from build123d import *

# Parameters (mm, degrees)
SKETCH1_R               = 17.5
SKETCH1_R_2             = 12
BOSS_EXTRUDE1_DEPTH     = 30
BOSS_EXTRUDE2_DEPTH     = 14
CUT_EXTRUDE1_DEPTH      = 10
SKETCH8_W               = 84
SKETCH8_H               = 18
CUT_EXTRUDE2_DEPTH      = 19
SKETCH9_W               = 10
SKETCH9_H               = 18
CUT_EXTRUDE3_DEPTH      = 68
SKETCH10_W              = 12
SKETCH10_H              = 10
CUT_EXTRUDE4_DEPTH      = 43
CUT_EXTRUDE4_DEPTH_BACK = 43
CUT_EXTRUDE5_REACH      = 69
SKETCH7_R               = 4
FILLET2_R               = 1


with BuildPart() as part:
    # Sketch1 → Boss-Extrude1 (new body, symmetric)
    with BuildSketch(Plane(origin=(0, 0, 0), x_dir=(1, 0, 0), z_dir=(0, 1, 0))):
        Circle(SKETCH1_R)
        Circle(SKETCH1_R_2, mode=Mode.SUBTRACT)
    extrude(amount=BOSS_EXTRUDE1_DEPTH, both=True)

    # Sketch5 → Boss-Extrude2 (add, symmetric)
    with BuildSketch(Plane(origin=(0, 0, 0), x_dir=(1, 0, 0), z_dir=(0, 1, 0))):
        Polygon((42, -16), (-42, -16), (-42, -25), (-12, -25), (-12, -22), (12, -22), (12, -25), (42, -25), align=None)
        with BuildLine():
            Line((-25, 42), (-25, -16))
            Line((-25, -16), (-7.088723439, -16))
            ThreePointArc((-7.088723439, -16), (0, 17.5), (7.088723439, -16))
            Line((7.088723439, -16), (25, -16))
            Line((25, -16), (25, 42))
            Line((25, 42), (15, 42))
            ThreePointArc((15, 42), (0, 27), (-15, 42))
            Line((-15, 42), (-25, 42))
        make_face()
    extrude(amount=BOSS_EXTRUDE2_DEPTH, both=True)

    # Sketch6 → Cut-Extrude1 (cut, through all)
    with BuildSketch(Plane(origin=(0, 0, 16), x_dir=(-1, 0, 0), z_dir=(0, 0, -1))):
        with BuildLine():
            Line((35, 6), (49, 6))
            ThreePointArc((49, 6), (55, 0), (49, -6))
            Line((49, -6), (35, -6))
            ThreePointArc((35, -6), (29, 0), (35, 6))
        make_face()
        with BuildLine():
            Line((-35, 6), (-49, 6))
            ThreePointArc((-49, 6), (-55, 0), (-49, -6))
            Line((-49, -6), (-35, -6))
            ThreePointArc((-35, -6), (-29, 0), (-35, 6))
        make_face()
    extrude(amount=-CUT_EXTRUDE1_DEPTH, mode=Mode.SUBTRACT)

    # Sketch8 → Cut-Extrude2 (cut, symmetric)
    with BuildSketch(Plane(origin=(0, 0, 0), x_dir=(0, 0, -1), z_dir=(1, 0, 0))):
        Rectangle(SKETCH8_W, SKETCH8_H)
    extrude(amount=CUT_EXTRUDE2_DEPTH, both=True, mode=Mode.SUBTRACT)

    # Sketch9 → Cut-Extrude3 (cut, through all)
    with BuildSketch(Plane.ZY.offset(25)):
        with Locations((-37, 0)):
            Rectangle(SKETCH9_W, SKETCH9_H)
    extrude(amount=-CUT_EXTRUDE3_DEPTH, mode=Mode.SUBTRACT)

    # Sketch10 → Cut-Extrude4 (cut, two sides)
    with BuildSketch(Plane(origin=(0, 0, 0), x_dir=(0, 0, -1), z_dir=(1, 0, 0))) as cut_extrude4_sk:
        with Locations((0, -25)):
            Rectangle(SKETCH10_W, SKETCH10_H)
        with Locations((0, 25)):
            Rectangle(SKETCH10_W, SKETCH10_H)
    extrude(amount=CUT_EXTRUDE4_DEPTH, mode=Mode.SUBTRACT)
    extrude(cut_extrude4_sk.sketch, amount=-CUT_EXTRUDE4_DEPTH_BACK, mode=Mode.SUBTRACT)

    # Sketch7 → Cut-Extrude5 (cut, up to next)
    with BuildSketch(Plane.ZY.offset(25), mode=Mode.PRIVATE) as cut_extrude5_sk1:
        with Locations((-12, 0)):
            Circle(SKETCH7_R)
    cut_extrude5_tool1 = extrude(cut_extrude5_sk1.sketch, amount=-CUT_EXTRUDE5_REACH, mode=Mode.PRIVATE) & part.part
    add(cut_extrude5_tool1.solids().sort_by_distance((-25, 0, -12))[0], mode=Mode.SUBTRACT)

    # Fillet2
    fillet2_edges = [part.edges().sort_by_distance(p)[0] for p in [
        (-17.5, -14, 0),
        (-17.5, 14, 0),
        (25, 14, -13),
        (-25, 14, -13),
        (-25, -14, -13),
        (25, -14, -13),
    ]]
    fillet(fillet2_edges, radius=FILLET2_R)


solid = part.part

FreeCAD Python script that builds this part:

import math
import FreeCAD as App
import Part
import Sketcher
from FreeCAD import Vector
Q = App.Units.Quantity


def edges_at(feature, points):
    """Names of the edges that pass closest to the given points."""
    edges = feature.Shape.Edges
    near = lambda p: min(range(len(edges)), key=lambda i: edges[i].distToShape(Part.Vertex(*p))[0])
    return sorted({f"Edge{near(p) + 1}" for p in points})

doc = App.newDocument("Part")
body = doc.addObject("PartDesign::Body", "Body")

# Sketch on XZ plane
sketch1 = body.newObject("Sketcher::SketchObject", "Sketch")
sketch1.AttachmentSupport = (doc.getObject("XZ_Plane"), [""])
sketch1.MapMode = "FlatFace"
sketch1.addGeometry(Part.Circle(Vector(0, 0, 0), Vector(0, 0, 1), 17.5), False)
sketch1.addGeometry(Part.Circle(Vector(0, 0, 0), Vector(0, 0, 1), 12), False)
sketch1.addConstraint(Sketcher.Constraint("Coincident", 0, 3, -1, 1))
sketch1.addConstraint(Sketcher.Constraint("Coincident", 1, 3, -1, 1))
sketch1.addConstraint(Sketcher.Constraint("Diameter", 0, Q("35 mm")))
sketch1.addConstraint(Sketcher.Constraint("Diameter", 1, Q("24 mm")))
pad1 = body.newObject("PartDesign::Pad", "Pad")
pad1.Profile = sketch1
pad1.Length = 60
pad1.Midplane = True

# Sketch on XZ plane
sketch2 = body.newObject("Sketcher::SketchObject", "Sketch001")
sketch2.AttachmentSupport = (doc.getObject("XZ_Plane"), [""])
sketch2.MapMode = "FlatFace"
sketch2.addGeometry(Part.LineSegment(Vector(42, 16, 0), Vector(25, 16, 0)), False)
sketch2.addGeometry(Part.LineSegment(Vector(25, 16, 0), Vector(25, -42, 0)), False)
sketch2.addGeometry(Part.LineSegment(Vector(25, -42, 0), Vector(15, -42, 0)), False)
sketch2.addGeometry(Part.ArcOfCircle(Part.Circle(Vector(0, -42, 0), Vector(0, 0, 1), 15), math.radians(0), math.radians(180)), False)
sketch2.addGeometry(Part.LineSegment(Vector(-15, -42, 0), Vector(-25, -42, 0)), False)
sketch2.addGeometry(Part.LineSegment(Vector(-25, -42, 0), Vector(-25, 16, 0)), False)
sketch2.addGeometry(Part.LineSegment(Vector(-25, 16, 0), Vector(-42, 16, 0)), False)
sketch2.addGeometry(Part.LineSegment(Vector(-42, 16, 0), Vector(-42, 25, 0)), False)
sketch2.addGeometry(Part.LineSegment(Vector(-42, 25, 0), Vector(-12, 25, 0)), False)
sketch2.addGeometry(Part.LineSegment(Vector(-12, 25, 0), Vector(-12, 22, 0)), False)
sketch2.addGeometry(Part.LineSegment(Vector(-12, 22, 0), Vector(12, 22, 0)), False)
sketch2.addGeometry(Part.LineSegment(Vector(12, 22, 0), Vector(12, 25, 0)), False)
sketch2.addGeometry(Part.LineSegment(Vector(12, 25, 0), Vector(42, 25, 0)), False)
sketch2.addGeometry(Part.LineSegment(Vector(42, 25, 0), Vector(42, 16, 0)), False)
sketch2.addGeometry(Part.LineSegment(Vector(7.088723, 16, 0), Vector(-7.088723, 16, 0)), False)
sketch2.addGeometry(Part.ArcOfCircle(Part.Circle(Vector(0, 0, 0), Vector(0, 0, 1), 17.5), math.radians(113.895508), math.radians(426.104492)), False)
sketch2.addConstraint(Sketcher.Constraint("Coincident", 0, 2, 1, 1))
sketch2.addConstraint(Sketcher.Constraint("Coincident", 1, 2, 2, 1))
sketch2.addConstraint(Sketcher.Constraint("Coincident", 2, 2, 3, 1))
sketch2.addConstraint(Sketcher.Constraint("Coincident", 3, 2, 4, 1))
sketch2.addConstraint(Sketcher.Constraint("Coincident", 4, 2, 5, 1))
sketch2.addConstraint(Sketcher.Constraint("Coincident", 5, 2, 6, 1))
sketch2.addConstraint(Sketcher.Constraint("Coincident", 6, 2, 7, 1))
sketch2.addConstraint(Sketcher.Constraint("Coincident", 7, 2, 8, 1))
sketch2.addConstraint(Sketcher.Constraint("Coincident", 8, 2, 9, 1))
sketch2.addConstraint(Sketcher.Constraint("Coincident", 9, 2, 10, 1))
sketch2.addConstraint(Sketcher.Constraint("Coincident", 10, 2, 11, 1))
sketch2.addConstraint(Sketcher.Constraint("Coincident", 11, 2, 12, 1))
sketch2.addConstraint(Sketcher.Constraint("Coincident", 12, 2, 13, 1))
sketch2.addConstraint(Sketcher.Constraint("Coincident", 13, 2, 0, 1))
sketch2.addConstraint(Sketcher.Constraint("Coincident", 14, 1, 15, 2))
sketch2.addConstraint(Sketcher.Constraint("Coincident", 15, 1, 14, 2))
sketch2.addConstraint(Sketcher.Constraint("Horizontal", 0))
sketch2.addConstraint(Sketcher.Constraint("Vertical", 1))
sketch2.addConstraint(Sketcher.Constraint("Horizontal", 2))
sketch2.addConstraint(Sketcher.Constraint("Horizontal", 4))
sketch2.addConstraint(Sketcher.Constraint("Vertical", 5))
sketch2.addConstraint(Sketcher.Constraint("Horizontal", 6))
sketch2.addConstraint(Sketcher.Constraint("Vertical", 7))
sketch2.addConstraint(Sketcher.Constraint("Horizontal", 8))
sketch2.addConstraint(Sketcher.Constraint("Vertical", 9))
sketch2.addConstraint(Sketcher.Constraint("Horizontal", 10))
sketch2.addConstraint(Sketcher.Constraint("Vertical", 11))
sketch2.addConstraint(Sketcher.Constraint("Horizontal", 12))
sketch2.addConstraint(Sketcher.Constraint("Vertical", 13))
sketch2.addConstraint(Sketcher.Constraint("Horizontal", 14))
sketch2.addConstraint(Sketcher.Constraint("Coincident", 15, 3, -1, 1))
sketch2.addConstraint(Sketcher.Constraint("Symmetric", 2, 2, 3, 2, -2))
sketch2.addConstraint(Sketcher.Constraint("Symmetric", 0, 2, 5, 2, -2))
sketch2.addConstraint(Sketcher.Constraint("Symmetric", 8, 2, 11, 2, -2))
sketch2.addConstraint(Sketcher.Constraint("Horizontal", 3, 3, 1, 2))
sketch2.addConstraint(Sketcher.Constraint("Horizontal", 13, 2, 14, 1))
sketch2.addConstraint(Sketcher.Constraint("Equal", 0, 6))
sketch2.addConstraint(Sketcher.Constraint("Radius", 3, Q("15 mm")))
sketch2.addConstraint(Sketcher.Constraint("Radius", 15, Q("17.5 mm")))
sketch2.addConstraint(Sketcher.Constraint("DistanceX", 0, 2, 0, 1, Q("17 mm")))
sketch2.addConstraint(Sketcher.Constraint("DistanceX", 2, 2, 2, 1, Q("10 mm")))
sketch2.addConstraint(Sketcher.Constraint("DistanceX", 8, 1, 8, 2, Q("30 mm")))
sketch2.addConstraint(Sketcher.Constraint("DistanceY", 1, 2, 1, 1, Q("58 mm")))
sketch2.addConstraint(Sketcher.Constraint("DistanceY", 7, 1, 7, 2, Q("9 mm")))
sketch2.addConstraint(Sketcher.Constraint("DistanceY", 9, 2, 9, 1, Q("3 mm")))
sketch2.addConstraint(Sketcher.Constraint("DistanceY", 3, 3, -1, 1, Q("42 mm")))
pad2 = body.newObject("PartDesign::Pad", "Pad001")
pad2.Profile = sketch2
pad2.Length = 28
pad2.Midplane = True

# Sketch on XY plane
sketch3 = body.newObject("Sketcher::SketchObject", "Sketch002")
sketch3.AttachmentSupport = (doc.getObject("XY_Plane"), [""])
sketch3.MapMode = "FlatFace"
sketch3.AttachmentOffset = App.Placement(Vector(0, 0, 16), App.Rotation())
sketch3.addGeometry(Part.LineSegment(Vector(-49, 6, 0), Vector(-35, 6, 0)), False)
sketch3.addGeometry(Part.ArcOfCircle(Part.Circle(Vector(-35, 0, 0), Vector(0, 0, 1), 6), math.radians(-90), math.radians(90)), False)
sketch3.addGeometry(Part.LineSegment(Vector(-35, -6, 0), Vector(-49, -6, 0)), False)
sketch3.addGeometry(Part.ArcOfCircle(Part.Circle(Vector(-49, 0, 0), Vector(0, 0, 1), 6), math.radians(90), math.radians(270)), False)
sketch3.addGeometry(Part.LineSegment(Vector(35, 6, 0), Vector(49, 6, 0)), False)
sketch3.addGeometry(Part.ArcOfCircle(Part.Circle(Vector(49, 0, 0), Vector(0, 0, 1), 6), math.radians(-90), math.radians(90)), False)
sketch3.addGeometry(Part.LineSegment(Vector(49, -6, 0), Vector(35, -6, 0)), False)
sketch3.addGeometry(Part.ArcOfCircle(Part.Circle(Vector(35, 0, 0), Vector(0, 0, 1), 6), math.radians(90), math.radians(270)), False)
sketch3.addConstraint(Sketcher.Constraint("Tangent", 0, 2, 1, 2))
sketch3.addConstraint(Sketcher.Constraint("Tangent", 1, 1, 2, 1))
sketch3.addConstraint(Sketcher.Constraint("Tangent", 2, 2, 3, 2))
sketch3.addConstraint(Sketcher.Constraint("Tangent", 3, 1, 0, 1))
sketch3.addConstraint(Sketcher.Constraint("Tangent", 4, 2, 5, 2))
sketch3.addConstraint(Sketcher.Constraint("Tangent", 5, 1, 6, 1))
sketch3.addConstraint(Sketcher.Constraint("Tangent", 6, 2, 7, 2))
sketch3.addConstraint(Sketcher.Constraint("Tangent", 7, 1, 4, 1))
sketch3.addConstraint(Sketcher.Constraint("Horizontal", 0))
sketch3.addConstraint(Sketcher.Constraint("Horizontal", 2))
sketch3.addConstraint(Sketcher.Constraint("Horizontal", 4))
sketch3.addConstraint(Sketcher.Constraint("Horizontal", 6))
sketch3.addConstraint(Sketcher.Constraint("Equal", 3, 5))
sketch3.addConstraint(Sketcher.Constraint("Symmetric", 3, 3, 5, 3, -1, 1))
sketch3.addConstraint(Sketcher.Constraint("Symmetric", 1, 3, 7, 3, -2))
sketch3.addConstraint(Sketcher.Constraint("Radius", 1, Q("6 mm")))
sketch3.addConstraint(Sketcher.Constraint("DistanceX", 0, 1, 0, 2, Q("14 mm")))
sketch3.addConstraint(Sketcher.Constraint("DistanceX", 1, 3, -1, 1, Q("35 mm")))
pocket1 = body.newObject("PartDesign::Pocket", "Pocket")
pocket1.Profile = sketch3
pocket1.Type = "ThroughAll"
pocket1.Reversed = True

# Sketch on YZ plane
sketch4 = body.newObject("Sketcher::SketchObject", "Sketch003")
sketch4.AttachmentSupport = (doc.getObject("YZ_Plane"), [""])
sketch4.MapMode = "FlatFace"
sketch4.addGeometry(Part.LineSegment(Vector(9, 42, 0), Vector(-9, 42, 0)), False)
sketch4.addGeometry(Part.LineSegment(Vector(-9, 42, 0), Vector(-9, -42, 0)), False)
sketch4.addGeometry(Part.LineSegment(Vector(-9, -42, 0), Vector(9, -42, 0)), False)
sketch4.addGeometry(Part.LineSegment(Vector(9, -42, 0), Vector(9, 42, 0)), False)
sketch4.addConstraint(Sketcher.Constraint("Coincident", 0, 2, 1, 1))
sketch4.addConstraint(Sketcher.Constraint("Coincident", 1, 2, 2, 1))
sketch4.addConstraint(Sketcher.Constraint("Coincident", 2, 2, 3, 1))
sketch4.addConstraint(Sketcher.Constraint("Coincident", 3, 2, 0, 1))
sketch4.addConstraint(Sketcher.Constraint("Horizontal", 0))
sketch4.addConstraint(Sketcher.Constraint("Vertical", 1))
sketch4.addConstraint(Sketcher.Constraint("Horizontal", 2))
sketch4.addConstraint(Sketcher.Constraint("Vertical", 3))
sketch4.addConstraint(Sketcher.Constraint("Symmetric", 0, 2, 2, 2, -1, 1))
sketch4.addConstraint(Sketcher.Constraint("DistanceX", 0, 2, 0, 1, Q("18 mm")))
sketch4.addConstraint(Sketcher.Constraint("DistanceY", 1, 2, 1, 1, Q("84 mm")))
pocket2 = body.newObject("PartDesign::Pocket", "Pocket001")
pocket2.Profile = sketch4
pocket2.Length = 38
pocket2.Midplane = True

# Sketch on YZ plane
sketch5 = body.newObject("Sketcher::SketchObject", "Sketch004")
sketch5.AttachmentSupport = (doc.getObject("YZ_Plane"), [""])
sketch5.MapMode = "FlatFace"
sketch5.AttachmentOffset = App.Placement(Vector(0, 0, -25), App.Rotation())
sketch5.addGeometry(Part.LineSegment(Vector(9, -42, 0), Vector(-9, -42, 0)), False)
sketch5.addGeometry(Part.LineSegment(Vector(-9, -42, 0), Vector(-9, -32, 0)), False)
sketch5.addGeometry(Part.LineSegment(Vector(-9, -32, 0), Vector(9, -32, 0)), False)
sketch5.addGeometry(Part.LineSegment(Vector(9, -32, 0), Vector(9, -42, 0)), False)
sketch5.addConstraint(Sketcher.Constraint("Coincident", 0, 2, 1, 1))
sketch5.addConstraint(Sketcher.Constraint("Coincident", 1, 2, 2, 1))
sketch5.addConstraint(Sketcher.Constraint("Coincident", 2, 2, 3, 1))
sketch5.addConstraint(Sketcher.Constraint("Coincident", 3, 2, 0, 1))
sketch5.addConstraint(Sketcher.Constraint("Horizontal", 0))
sketch5.addConstraint(Sketcher.Constraint("Vertical", 1))
sketch5.addConstraint(Sketcher.Constraint("Horizontal", 2))
sketch5.addConstraint(Sketcher.Constraint("Vertical", 3))
sketch5.addConstraint(Sketcher.Constraint("DistanceX", 0, 2, 0, 1, Q("18 mm")))
sketch5.addConstraint(Sketcher.Constraint("DistanceY", 1, 1, 1, 2, Q("10 mm")))
sketch5.addConstraint(Sketcher.Constraint("DistanceX", 0, 2, -1, 1, Q("9 mm")))
sketch5.addConstraint(Sketcher.Constraint("DistanceY", 0, 2, -1, 1, Q("42 mm")))
pocket3 = body.newObject("PartDesign::Pocket", "Pocket002")
pocket3.Profile = sketch5
pocket3.Type = "ThroughAll"
pocket3.Reversed = True

# Sketch on YZ plane
sketch6 = body.newObject("Sketcher::SketchObject", "Sketch005")
sketch6.AttachmentSupport = (doc.getObject("YZ_Plane"), [""])
sketch6.MapMode = "FlatFace"
sketch6.addGeometry(Part.LineSegment(Vector(-20, 6, 0), Vector(-30, 6, 0)), False)
sketch6.addGeometry(Part.LineSegment(Vector(-30, 6, 0), Vector(-30, -6, 0)), False)
sketch6.addGeometry(Part.LineSegment(Vector(-30, -6, 0), Vector(-20, -6, 0)), False)
sketch6.addGeometry(Part.LineSegment(Vector(-20, -6, 0), Vector(-20, 6, 0)), False)
sketch6.addGeometry(Part.LineSegment(Vector(30, 6, 0), Vector(20, 6, 0)), False)
sketch6.addGeometry(Part.LineSegment(Vector(20, 6, 0), Vector(20, -6, 0)), False)
sketch6.addGeometry(Part.LineSegment(Vector(20, -6, 0), Vector(30, -6, 0)), False)
sketch6.addGeometry(Part.LineSegment(Vector(30, -6, 0), Vector(30, 6, 0)), False)
sketch6.addConstraint(Sketcher.Constraint("Coincident", 0, 2, 1, 1))
sketch6.addConstraint(Sketcher.Constraint("Coincident", 1, 2, 2, 1))
sketch6.addConstraint(Sketcher.Constraint("Coincident", 2, 2, 3, 1))
sketch6.addConstraint(Sketcher.Constraint("Coincident", 3, 2, 0, 1))
sketch6.addConstraint(Sketcher.Constraint("Coincident", 4, 2, 5, 1))
sketch6.addConstraint(Sketcher.Constraint("Coincident", 5, 2, 6, 1))
sketch6.addConstraint(Sketcher.Constraint("Coincident", 6, 2, 7, 1))
sketch6.addConstraint(Sketcher.Constraint("Coincident", 7, 2, 4, 1))
sketch6.addConstraint(Sketcher.Constraint("Horizontal", 0))
sketch6.addConstraint(Sketcher.Constraint("Vertical", 1))
sketch6.addConstraint(Sketcher.Constraint("Horizontal", 2))
sketch6.addConstraint(Sketcher.Constraint("Vertical", 3))
sketch6.addConstraint(Sketcher.Constraint("Horizontal", 4))
sketch6.addConstraint(Sketcher.Constraint("Vertical", 5))
sketch6.addConstraint(Sketcher.Constraint("Horizontal", 6))
sketch6.addConstraint(Sketcher.Constraint("Vertical", 7))
sketch6.addConstraint(Sketcher.Constraint("Symmetric", 2, 2, 4, 2, -1, 1))
sketch6.addConstraint(Sketcher.Constraint("Symmetric", 0, 2, 6, 2, -1, 1))
sketch6.addConstraint(Sketcher.Constraint("Horizontal", 3, 2, 4, 2))
sketch6.addConstraint(Sketcher.Constraint("DistanceX", 0, 2, 0, 1, Q("10 mm")))
sketch6.addConstraint(Sketcher.Constraint("DistanceY", 1, 2, 1, 1, Q("12 mm")))
sketch6.addConstraint(Sketcher.Constraint("DistanceX", 0, 2, -1, 1, Q("30 mm")))
pocket4 = body.newObject("PartDesign::Pocket", "Pocket003")
pocket4.Profile = sketch6
pocket4.Type = "ThroughAll"
pocket4.Midplane = True

# Sketch on YZ plane
sketch7 = body.newObject("Sketcher::SketchObject", "Sketch006")
sketch7.AttachmentSupport = (doc.getObject("YZ_Plane"), [""])
sketch7.MapMode = "FlatFace"
sketch7.AttachmentOffset = App.Placement(Vector(0, 0, -25), App.Rotation())
sketch7.addGeometry(Part.Circle(Vector(0, -12, 0), Vector(0, 0, 1), 4), False)
sketch7.addConstraint(Sketcher.Constraint("PointOnObject", 0, 3, -2))
sketch7.addConstraint(Sketcher.Constraint("Diameter", 0, Q("8 mm")))
sketch7.addConstraint(Sketcher.Constraint("DistanceY", 0, 3, -1, 1, Q("12 mm")))
pocket5 = body.newObject("PartDesign::Pocket", "Pocket004")
pocket5.Profile = sketch7
pocket5.Type = "UpToFirst"
pocket5.Reversed = True
doc.recompute()

fillet = body.newObject("PartDesign::Fillet", "Fillet")
fillet.Base = (pocket5, edges_at(pocket5, [
    (-9.545, -14, -14.668),
    (-9.545, 14, -14.668),
    (25, 14, -13),
    (-25, 14, -13),
    (-25, -14, -13),
    (25, -14, -13),
]))
fillet.Radius = 1

doc.recompute()
